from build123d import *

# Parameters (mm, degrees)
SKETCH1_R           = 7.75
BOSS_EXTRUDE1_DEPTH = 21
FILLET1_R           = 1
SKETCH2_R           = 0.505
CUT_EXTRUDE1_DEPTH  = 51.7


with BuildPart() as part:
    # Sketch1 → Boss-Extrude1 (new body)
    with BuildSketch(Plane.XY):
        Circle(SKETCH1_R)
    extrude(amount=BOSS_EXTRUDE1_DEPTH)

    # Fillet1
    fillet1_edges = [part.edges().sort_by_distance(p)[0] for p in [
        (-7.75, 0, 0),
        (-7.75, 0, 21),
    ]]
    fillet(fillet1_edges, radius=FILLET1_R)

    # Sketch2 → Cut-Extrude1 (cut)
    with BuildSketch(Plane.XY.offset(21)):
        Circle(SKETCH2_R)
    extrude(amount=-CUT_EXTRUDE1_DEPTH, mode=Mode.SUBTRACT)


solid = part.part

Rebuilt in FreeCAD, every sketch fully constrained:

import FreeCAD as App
import Part
import Sketcher

V = App.Vector


def edges_at(feature, points):
    """Names of the edges that pass closest to the given points."""
    edges = feature.Shape.Edges
    near = lambda p: min(range(len(edges)), key=lambda i: edges[i].distToShape(Part.Vertex(*p))[0])
    return sorted({f"Edge{near(p) + 1}" for p in points})

doc = App.newDocument("Part")
body = doc.addObject("PartDesign::Body", "Body")

# Sketch on XY plane
sketch1 = body.newObject("Sketcher::SketchObject", "Sketch")
sketch1.AttachmentSupport = (doc.getObject("XY_Plane"), [""])
sketch1.MapMode = "FlatFace"
sketch1.addGeometry(Part.Circle(V(0, 0, 0), V(0, 0, 1), 8), False)
sketch1.addConstraint([
    Sketcher.Constraint("Coincident", 0, 3, -1, 1),
    Sketcher.Constraint("Diameter", 0, 15.5),
])
pad1 = body.newObject("PartDesign::Pad", "Pad")
pad1.Profile = sketch1
pad1.Length = 21
doc.recompute()

fillet = body.newObject("PartDesign::Fillet", "Fillet")
fillet.Base = (pad1, edges_at(pad1, [(-7.75, 0, 0), (-7.75, 0, 21)]))
fillet.Radius = 1

# Sketch on XY plane
sketch2 = body.newObject("Sketcher::SketchObject", "Sketch001")
sketch2.AttachmentSupport = (doc.getObject("XY_Plane"), [""])
sketch2.MapMode = "FlatFace"
sketch2.AttachmentOffset = App.Placement(V(0, 0, 21), App.Rotation())
sketch2.addGeometry(Part.Circle(V(0, 0, 0), V(0, 0, 1), 0.5), False)
sketch2.addConstraint([
    Sketcher.Constraint("Coincident", 0, 3, -1, 1),
    Sketcher.Constraint("Diameter", 0, 1.01),
])
pocket1 = body.newObject("PartDesign::Pocket", "Pocket")
pocket1.Profile = sketch2
pocket1.Length = 51.7

doc.recompute()
